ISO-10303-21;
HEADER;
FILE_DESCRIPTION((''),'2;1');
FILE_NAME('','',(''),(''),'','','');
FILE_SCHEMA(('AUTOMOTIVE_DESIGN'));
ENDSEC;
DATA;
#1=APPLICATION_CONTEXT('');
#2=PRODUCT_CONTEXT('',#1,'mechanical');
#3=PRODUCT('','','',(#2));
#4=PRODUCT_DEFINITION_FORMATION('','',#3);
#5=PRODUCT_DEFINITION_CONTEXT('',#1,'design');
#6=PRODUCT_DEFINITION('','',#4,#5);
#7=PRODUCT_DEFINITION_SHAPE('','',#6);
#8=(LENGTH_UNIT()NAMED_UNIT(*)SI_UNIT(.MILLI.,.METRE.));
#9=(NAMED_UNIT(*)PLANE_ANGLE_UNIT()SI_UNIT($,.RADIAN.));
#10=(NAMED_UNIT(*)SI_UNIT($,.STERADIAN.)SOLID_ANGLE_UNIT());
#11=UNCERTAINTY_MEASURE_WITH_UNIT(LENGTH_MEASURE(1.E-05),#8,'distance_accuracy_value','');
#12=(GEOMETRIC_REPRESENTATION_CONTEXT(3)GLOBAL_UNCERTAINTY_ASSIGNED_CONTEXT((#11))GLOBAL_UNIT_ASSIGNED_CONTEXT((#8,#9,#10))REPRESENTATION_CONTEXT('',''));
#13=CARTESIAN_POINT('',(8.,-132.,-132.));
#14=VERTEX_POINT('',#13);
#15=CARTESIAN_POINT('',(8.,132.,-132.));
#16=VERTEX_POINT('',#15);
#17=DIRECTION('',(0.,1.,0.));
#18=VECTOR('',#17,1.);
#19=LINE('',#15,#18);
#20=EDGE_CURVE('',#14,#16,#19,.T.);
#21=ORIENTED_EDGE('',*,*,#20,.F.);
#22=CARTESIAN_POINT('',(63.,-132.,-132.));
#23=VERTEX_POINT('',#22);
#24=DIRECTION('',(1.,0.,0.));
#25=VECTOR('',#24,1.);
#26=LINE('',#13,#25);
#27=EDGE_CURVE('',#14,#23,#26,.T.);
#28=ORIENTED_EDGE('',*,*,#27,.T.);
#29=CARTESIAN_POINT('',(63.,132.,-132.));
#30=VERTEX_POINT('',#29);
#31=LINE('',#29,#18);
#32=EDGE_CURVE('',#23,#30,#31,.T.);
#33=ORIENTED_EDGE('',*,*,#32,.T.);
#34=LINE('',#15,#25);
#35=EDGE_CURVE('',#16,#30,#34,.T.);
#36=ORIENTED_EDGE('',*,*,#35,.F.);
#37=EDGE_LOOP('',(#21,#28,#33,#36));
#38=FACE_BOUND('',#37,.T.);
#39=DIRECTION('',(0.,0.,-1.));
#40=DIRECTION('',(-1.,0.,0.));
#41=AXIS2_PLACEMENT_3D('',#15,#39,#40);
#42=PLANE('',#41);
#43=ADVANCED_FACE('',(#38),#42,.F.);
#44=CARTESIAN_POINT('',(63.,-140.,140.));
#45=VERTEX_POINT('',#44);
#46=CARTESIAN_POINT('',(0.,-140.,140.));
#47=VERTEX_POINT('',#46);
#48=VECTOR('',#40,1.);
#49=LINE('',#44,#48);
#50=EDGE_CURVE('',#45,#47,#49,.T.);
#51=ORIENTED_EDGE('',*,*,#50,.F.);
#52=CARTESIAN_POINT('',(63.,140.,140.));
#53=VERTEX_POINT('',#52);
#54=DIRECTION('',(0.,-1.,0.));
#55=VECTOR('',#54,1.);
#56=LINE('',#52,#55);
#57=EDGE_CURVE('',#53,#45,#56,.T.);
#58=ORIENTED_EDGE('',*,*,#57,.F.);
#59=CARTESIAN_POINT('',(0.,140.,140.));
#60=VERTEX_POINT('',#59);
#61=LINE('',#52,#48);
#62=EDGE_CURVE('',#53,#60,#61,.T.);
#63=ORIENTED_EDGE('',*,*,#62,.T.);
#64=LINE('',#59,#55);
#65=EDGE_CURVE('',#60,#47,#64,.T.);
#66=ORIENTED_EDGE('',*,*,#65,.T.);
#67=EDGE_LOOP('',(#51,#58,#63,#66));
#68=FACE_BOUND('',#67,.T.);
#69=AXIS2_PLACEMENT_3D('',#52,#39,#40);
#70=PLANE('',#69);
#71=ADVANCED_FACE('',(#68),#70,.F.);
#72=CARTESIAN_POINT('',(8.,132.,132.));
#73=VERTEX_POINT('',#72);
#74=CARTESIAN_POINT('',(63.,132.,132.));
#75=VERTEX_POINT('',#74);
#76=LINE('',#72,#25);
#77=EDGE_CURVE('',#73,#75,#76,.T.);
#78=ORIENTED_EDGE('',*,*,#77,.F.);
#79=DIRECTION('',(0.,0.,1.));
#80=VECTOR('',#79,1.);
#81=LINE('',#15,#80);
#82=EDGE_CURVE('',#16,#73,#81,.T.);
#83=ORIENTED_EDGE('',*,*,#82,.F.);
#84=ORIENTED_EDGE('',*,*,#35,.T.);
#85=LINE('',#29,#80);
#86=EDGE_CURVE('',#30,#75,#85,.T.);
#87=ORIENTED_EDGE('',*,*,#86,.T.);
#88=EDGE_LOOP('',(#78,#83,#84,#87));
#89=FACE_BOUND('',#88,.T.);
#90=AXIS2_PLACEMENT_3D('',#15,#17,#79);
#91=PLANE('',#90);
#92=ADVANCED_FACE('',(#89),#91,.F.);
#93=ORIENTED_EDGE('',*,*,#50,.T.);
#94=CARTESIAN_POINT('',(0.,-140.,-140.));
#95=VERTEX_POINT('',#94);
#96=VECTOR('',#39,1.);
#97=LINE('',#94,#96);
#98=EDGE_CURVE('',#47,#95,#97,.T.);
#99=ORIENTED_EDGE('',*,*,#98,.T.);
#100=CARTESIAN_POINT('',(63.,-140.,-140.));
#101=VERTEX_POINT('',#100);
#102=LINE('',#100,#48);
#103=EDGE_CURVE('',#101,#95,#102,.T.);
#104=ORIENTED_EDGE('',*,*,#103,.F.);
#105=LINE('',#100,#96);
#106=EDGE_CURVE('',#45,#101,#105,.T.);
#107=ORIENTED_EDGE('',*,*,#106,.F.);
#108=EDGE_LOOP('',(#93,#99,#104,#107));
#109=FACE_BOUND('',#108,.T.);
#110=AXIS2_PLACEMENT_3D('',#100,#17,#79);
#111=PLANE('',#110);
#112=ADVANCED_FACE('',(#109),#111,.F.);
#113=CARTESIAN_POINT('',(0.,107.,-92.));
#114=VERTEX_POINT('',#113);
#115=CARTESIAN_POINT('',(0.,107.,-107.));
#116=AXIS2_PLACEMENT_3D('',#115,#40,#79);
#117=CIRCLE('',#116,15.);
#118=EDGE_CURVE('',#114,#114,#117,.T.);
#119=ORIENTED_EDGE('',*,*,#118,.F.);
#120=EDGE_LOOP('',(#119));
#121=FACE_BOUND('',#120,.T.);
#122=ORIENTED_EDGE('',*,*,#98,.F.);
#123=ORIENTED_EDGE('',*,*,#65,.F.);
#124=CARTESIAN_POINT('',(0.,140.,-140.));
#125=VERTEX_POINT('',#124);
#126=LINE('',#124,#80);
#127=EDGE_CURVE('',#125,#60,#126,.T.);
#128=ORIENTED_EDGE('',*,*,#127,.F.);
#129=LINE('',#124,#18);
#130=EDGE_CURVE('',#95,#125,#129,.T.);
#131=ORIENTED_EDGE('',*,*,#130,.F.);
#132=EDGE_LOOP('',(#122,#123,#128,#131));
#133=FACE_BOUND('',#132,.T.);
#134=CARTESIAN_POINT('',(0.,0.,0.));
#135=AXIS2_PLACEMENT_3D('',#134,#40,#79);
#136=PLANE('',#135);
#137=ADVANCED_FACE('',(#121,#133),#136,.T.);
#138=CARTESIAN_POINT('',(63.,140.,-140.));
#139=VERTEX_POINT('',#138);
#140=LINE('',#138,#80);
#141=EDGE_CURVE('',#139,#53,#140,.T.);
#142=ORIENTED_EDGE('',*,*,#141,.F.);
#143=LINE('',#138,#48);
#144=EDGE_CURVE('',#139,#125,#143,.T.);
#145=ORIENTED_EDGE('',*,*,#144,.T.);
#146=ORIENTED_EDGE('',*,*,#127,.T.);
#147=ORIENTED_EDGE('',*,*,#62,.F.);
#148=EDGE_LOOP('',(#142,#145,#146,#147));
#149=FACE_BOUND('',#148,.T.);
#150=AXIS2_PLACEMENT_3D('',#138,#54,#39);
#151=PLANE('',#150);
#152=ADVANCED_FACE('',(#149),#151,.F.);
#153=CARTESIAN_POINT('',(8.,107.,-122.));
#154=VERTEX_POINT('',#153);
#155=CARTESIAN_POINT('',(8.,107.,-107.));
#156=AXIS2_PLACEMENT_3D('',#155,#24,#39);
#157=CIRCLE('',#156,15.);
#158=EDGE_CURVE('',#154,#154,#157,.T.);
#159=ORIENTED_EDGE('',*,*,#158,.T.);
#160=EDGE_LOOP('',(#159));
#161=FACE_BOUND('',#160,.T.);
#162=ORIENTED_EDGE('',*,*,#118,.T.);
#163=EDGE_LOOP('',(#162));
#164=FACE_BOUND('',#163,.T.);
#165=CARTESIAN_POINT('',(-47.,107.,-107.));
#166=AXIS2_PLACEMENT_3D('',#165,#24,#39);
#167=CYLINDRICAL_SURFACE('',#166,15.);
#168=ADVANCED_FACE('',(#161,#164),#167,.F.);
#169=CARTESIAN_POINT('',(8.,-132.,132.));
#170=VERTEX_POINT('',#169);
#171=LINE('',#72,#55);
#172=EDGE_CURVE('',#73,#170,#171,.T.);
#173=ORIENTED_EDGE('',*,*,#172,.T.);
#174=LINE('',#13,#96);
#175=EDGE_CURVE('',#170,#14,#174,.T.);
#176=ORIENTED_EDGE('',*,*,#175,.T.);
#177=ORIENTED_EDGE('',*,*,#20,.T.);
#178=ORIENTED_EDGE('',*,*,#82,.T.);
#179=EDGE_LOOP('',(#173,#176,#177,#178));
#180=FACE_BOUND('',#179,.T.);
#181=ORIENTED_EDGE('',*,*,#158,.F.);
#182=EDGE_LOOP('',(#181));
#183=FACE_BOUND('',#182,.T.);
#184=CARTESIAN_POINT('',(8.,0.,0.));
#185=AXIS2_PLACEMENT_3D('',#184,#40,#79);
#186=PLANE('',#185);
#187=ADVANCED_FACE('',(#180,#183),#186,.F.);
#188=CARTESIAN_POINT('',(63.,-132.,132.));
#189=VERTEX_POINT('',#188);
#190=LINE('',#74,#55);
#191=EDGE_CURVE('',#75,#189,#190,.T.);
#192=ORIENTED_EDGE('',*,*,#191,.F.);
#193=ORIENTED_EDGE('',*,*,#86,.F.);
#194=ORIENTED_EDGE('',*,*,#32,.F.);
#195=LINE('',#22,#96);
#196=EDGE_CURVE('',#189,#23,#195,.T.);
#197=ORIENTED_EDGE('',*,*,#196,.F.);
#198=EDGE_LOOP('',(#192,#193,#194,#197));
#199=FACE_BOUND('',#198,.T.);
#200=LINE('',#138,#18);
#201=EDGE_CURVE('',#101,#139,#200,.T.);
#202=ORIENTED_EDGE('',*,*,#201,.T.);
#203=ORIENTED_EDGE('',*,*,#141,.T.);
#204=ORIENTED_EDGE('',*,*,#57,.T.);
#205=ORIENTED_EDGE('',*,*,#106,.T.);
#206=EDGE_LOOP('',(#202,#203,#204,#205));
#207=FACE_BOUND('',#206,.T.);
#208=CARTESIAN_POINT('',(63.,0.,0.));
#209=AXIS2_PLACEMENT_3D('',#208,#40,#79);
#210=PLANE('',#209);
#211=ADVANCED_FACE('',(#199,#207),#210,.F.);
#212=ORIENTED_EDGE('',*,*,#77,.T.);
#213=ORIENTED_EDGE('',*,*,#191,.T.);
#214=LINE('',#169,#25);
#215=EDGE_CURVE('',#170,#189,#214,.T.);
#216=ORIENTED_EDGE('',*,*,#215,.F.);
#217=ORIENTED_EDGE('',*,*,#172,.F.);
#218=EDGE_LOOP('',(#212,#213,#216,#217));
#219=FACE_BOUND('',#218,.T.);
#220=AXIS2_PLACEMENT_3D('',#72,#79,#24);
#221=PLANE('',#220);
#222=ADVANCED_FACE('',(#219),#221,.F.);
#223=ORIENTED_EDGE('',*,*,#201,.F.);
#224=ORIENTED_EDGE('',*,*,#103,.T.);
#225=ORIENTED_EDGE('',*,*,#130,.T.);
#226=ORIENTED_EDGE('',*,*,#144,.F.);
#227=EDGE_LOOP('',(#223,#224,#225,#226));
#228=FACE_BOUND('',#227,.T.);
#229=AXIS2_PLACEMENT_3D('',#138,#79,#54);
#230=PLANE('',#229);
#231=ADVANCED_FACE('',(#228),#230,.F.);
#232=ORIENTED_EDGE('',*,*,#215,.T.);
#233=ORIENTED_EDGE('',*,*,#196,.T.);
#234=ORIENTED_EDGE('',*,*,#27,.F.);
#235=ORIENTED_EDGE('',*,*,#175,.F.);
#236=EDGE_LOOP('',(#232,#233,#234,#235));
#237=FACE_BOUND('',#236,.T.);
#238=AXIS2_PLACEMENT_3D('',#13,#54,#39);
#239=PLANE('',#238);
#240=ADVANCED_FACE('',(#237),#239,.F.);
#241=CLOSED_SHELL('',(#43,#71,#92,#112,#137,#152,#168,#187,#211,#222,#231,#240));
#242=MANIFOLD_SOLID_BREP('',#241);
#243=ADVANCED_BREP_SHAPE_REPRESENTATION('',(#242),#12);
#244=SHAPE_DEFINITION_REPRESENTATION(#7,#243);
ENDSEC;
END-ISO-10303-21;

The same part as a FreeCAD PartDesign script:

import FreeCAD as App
import Part
import Sketcher

V = App.Vector


def add_polygon(sketch, points):
    """Adds a closed chain of lines whose ends are joined by coincident constraints."""
    first, n = sketch.GeometryCount, len(points)
    for a, b in zip(points, points[1:] + points[:1]):
        sketch.addGeometry(Part.LineSegment(App.Vector(*a, 0), App.Vector(*b, 0)), False)
    for i in range(n):
        sketch.addConstraint(Sketcher.Constraint("Coincident", first + i, 2, first + (i + 1) % n, 1))

doc = App.newDocument("Part")
body = doc.addObject("PartDesign::Body", "Body")

sketch1 = doc.addObject("Sketcher::SketchObject", "Sketch")
body.addObject(sketch1)
sketch1.AttachmentSupport = (doc.YZ_Plane, [""])
sketch1.MapMode = "FlatFace"
add_polygon(sketch1, [(140, 140), (-140, 140), (-140, -140), (140, -140)])
sketch1.addConstraint(Sketcher.Constraint("Horizontal", 0))
sketch1.addConstraint(Sketcher.Constraint("Vertical", 1))
sketch1.addConstraint(Sketcher.Constraint("Horizontal", 2))
sketch1.addConstraint(Sketcher.Constraint("Vertical", 3))
sketch1.addConstraint(Sketcher.Constraint("Symmetric", 0, 2, 2, 2, -1, 1))
sketch1.addConstraint(Sketcher.Constraint("Equal", 2, 1))
sketch1.addConstraint(Sketcher.Constraint("DistanceX", 0, 2, 0, 1, 280.0))
pad1 = doc.addObject("PartDesign::Pad", "Pad")
body.addObject(pad1)
pad1.Profile = sketch1
pad1.Length = 63

sketch2 = doc.addObject("Sketcher::SketchObject", "Sketch001")
body.addObject(sketch2)
sketch2.AttachmentSupport = (doc.YZ_Plane, [""])
sketch2.MapMode = "FlatFace"
sketch2.AttachmentOffset = App.Placement(V(0, 0, 63), App.Rotation())
add_polygon(sketch2, [(132, 132), (-132, 132), (-132, -132), (132, -132)])
sketch2.addConstraint(Sketcher.Constraint("Horizontal", 0))
sketch2.addConstraint(Sketcher.Constraint("Vertical", 1))
sketch2.addConstraint(Sketcher.Constraint("Horizontal", 2))
sketch2.addConstraint(Sketcher.Constraint("Vertical", 3))
sketch2.addConstraint(Sketcher.Constraint("Symmetric", 0, 2, 2, 2, -1, 1))
sketch2.addConstraint(Sketcher.Constraint("Equal", 2, 1))
sketch2.addConstraint(Sketcher.Constraint("DistanceX", 0, 2, 0, 1, 264.0))
pocket1 = doc.addObject("PartDesign::Pocket", "Pocket")
body.addObject(pocket1)
pocket1.Profile = sketch2
pocket1.Length = 55

sketch3 = doc.addObject("Sketcher::SketchObject", "Sketch002")
body.addObject(sketch3)
sketch3.AttachmentSupport = (doc.YZ_Plane, [""])
sketch3.MapMode = "FlatFace"
sketch3.AttachmentOffset = App.Placement(V(0, 0, 8), App.Rotation())
sketch3.addGeometry(Part.Circle(V(107, -107, 0), V(0, 0, 1), 15), False)
sketch3.addConstraint(Sketcher.Constraint("Diameter", 0, 30.0))
sketch3.addConstraint(Sketcher.Constraint("DistanceX", -1, 1, 0, 3, 107.0))
sketch3.addConstraint(Sketcher.Constraint("DistanceY", 0, 3, -1, 1, 107.0))
pocket2 = doc.addObject("PartDesign::Pocket", "Pocket001")
body.addObject(pocket2)
pocket2.Profile = sketch3
pocket2.Length = 55

doc.recompute()
